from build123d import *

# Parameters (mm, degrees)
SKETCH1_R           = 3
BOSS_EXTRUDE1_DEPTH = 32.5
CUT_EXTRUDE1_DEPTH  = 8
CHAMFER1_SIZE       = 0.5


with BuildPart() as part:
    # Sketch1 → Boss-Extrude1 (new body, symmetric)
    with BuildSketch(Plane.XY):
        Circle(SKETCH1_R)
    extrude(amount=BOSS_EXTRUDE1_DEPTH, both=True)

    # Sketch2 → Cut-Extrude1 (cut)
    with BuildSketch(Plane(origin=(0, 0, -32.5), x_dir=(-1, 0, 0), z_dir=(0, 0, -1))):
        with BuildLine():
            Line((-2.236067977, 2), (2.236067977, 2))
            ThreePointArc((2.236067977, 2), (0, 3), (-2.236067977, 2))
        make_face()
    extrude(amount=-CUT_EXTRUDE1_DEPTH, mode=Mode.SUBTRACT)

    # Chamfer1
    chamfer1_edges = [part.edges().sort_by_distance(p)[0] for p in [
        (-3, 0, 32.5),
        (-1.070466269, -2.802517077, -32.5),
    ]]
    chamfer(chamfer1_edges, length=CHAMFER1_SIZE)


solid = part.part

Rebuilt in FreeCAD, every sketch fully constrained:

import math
import FreeCAD as App
import Part
import Sketcher

V = App.Vector
Q = App.Units.Quantity


def edges_at(feature, points):
    """Names of the edges that pass closest to the given points."""
    edges = feature.Shape.Edges
    near = lambda p: min(range(len(edges)), key=lambda i: edges[i].distToShape(Part.Vertex(*p))[0])
    return sorted({f"Edge{near(p) + 1}" for p in points})

doc = App.newDocument("Part")
body = doc.addObject("PartDesign::Body", "Body")

# Sketch on XY plane
sketch1 = doc.addObject("Sketcher::SketchObject", "Sketch")
body.addObject(sketch1)
sketch1.AttachmentSupport = (doc.XY_Plane, [""])
sketch1.MapMode = "FlatFace"
sketch1.addGeometry(Part.Circle(V(0, 0, 0), V(0, 0, 1), 3), False)
sketch1.addConstraint(Sketcher.Constraint("Coincident", 0, 3, -1, 1))
sketch1.addConstraint(Sketcher.Constraint("Diameter", 0, Q("6 mm")))
pad1 = doc.addObject("PartDesign::Pad", "Pad")
body.addObject(pad1)
pad1.Profile = sketch1
pad1.Length = 65
pad1.Midplane = True

# Sketch on XY plane
sketch2 = doc.addObject("Sketcher::SketchObject", "Sketch001")
body.addObject(sketch2)
sketch2.AttachmentSupport = (doc.XY_Plane, [""])
sketch2.MapMode = "FlatFace"
sketch2.AttachmentOffset = App.Placement(V(0, 0, -32.5), App.Rotation())
sketch2.addGeometry(Part.LineSegment(V(2.236068, 2, 0), V(-2.236068, 2, 0)), False)
sketch2.addGeometry(Part.ArcOfCircle(Part.Circle(V(0, 0, 0), V(0, 0, 1), 3), math.radians(41.810315), math.radians(138.189685)), False)
sketch2.addConstraint(Sketcher.Constraint("Coincident", 0, 1, 1, 1))
sketch2.addConstraint(Sketcher.Constraint("Coincident", 1, 2, 0, 2))
sketch2.addConstraint(Sketcher.Constraint("Horizontal", 0))
sketch2.addConstraint(Sketcher.Constraint("Coincident", 1, 3, -1, 1))
sketch2.addConstraint(Sketcher.Constraint("Radius", 1, Q("3 mm")))
sketch2.addConstraint(Sketcher.Constraint("DistanceY", -1, 1, 0, 1, Q("2 mm")))
pocket1 = doc.addObject("PartDesign::Pocket", "Pocket")
body.addObject(pocket1)
pocket1.Profile = sketch2
pocket1.Length = 8
pocket1.Reversed = True
doc.recompute()

chamfer = doc.addObject("PartDesign::Chamfer", "Chamfer")
body.addObject(chamfer)
chamfer.Base = (pocket1, edges_at(pocket1, [(-3, 0, 32.5), (-1.07, -2.803, -32.5)]))
chamfer.Size = 0.5

doc.recompute()
